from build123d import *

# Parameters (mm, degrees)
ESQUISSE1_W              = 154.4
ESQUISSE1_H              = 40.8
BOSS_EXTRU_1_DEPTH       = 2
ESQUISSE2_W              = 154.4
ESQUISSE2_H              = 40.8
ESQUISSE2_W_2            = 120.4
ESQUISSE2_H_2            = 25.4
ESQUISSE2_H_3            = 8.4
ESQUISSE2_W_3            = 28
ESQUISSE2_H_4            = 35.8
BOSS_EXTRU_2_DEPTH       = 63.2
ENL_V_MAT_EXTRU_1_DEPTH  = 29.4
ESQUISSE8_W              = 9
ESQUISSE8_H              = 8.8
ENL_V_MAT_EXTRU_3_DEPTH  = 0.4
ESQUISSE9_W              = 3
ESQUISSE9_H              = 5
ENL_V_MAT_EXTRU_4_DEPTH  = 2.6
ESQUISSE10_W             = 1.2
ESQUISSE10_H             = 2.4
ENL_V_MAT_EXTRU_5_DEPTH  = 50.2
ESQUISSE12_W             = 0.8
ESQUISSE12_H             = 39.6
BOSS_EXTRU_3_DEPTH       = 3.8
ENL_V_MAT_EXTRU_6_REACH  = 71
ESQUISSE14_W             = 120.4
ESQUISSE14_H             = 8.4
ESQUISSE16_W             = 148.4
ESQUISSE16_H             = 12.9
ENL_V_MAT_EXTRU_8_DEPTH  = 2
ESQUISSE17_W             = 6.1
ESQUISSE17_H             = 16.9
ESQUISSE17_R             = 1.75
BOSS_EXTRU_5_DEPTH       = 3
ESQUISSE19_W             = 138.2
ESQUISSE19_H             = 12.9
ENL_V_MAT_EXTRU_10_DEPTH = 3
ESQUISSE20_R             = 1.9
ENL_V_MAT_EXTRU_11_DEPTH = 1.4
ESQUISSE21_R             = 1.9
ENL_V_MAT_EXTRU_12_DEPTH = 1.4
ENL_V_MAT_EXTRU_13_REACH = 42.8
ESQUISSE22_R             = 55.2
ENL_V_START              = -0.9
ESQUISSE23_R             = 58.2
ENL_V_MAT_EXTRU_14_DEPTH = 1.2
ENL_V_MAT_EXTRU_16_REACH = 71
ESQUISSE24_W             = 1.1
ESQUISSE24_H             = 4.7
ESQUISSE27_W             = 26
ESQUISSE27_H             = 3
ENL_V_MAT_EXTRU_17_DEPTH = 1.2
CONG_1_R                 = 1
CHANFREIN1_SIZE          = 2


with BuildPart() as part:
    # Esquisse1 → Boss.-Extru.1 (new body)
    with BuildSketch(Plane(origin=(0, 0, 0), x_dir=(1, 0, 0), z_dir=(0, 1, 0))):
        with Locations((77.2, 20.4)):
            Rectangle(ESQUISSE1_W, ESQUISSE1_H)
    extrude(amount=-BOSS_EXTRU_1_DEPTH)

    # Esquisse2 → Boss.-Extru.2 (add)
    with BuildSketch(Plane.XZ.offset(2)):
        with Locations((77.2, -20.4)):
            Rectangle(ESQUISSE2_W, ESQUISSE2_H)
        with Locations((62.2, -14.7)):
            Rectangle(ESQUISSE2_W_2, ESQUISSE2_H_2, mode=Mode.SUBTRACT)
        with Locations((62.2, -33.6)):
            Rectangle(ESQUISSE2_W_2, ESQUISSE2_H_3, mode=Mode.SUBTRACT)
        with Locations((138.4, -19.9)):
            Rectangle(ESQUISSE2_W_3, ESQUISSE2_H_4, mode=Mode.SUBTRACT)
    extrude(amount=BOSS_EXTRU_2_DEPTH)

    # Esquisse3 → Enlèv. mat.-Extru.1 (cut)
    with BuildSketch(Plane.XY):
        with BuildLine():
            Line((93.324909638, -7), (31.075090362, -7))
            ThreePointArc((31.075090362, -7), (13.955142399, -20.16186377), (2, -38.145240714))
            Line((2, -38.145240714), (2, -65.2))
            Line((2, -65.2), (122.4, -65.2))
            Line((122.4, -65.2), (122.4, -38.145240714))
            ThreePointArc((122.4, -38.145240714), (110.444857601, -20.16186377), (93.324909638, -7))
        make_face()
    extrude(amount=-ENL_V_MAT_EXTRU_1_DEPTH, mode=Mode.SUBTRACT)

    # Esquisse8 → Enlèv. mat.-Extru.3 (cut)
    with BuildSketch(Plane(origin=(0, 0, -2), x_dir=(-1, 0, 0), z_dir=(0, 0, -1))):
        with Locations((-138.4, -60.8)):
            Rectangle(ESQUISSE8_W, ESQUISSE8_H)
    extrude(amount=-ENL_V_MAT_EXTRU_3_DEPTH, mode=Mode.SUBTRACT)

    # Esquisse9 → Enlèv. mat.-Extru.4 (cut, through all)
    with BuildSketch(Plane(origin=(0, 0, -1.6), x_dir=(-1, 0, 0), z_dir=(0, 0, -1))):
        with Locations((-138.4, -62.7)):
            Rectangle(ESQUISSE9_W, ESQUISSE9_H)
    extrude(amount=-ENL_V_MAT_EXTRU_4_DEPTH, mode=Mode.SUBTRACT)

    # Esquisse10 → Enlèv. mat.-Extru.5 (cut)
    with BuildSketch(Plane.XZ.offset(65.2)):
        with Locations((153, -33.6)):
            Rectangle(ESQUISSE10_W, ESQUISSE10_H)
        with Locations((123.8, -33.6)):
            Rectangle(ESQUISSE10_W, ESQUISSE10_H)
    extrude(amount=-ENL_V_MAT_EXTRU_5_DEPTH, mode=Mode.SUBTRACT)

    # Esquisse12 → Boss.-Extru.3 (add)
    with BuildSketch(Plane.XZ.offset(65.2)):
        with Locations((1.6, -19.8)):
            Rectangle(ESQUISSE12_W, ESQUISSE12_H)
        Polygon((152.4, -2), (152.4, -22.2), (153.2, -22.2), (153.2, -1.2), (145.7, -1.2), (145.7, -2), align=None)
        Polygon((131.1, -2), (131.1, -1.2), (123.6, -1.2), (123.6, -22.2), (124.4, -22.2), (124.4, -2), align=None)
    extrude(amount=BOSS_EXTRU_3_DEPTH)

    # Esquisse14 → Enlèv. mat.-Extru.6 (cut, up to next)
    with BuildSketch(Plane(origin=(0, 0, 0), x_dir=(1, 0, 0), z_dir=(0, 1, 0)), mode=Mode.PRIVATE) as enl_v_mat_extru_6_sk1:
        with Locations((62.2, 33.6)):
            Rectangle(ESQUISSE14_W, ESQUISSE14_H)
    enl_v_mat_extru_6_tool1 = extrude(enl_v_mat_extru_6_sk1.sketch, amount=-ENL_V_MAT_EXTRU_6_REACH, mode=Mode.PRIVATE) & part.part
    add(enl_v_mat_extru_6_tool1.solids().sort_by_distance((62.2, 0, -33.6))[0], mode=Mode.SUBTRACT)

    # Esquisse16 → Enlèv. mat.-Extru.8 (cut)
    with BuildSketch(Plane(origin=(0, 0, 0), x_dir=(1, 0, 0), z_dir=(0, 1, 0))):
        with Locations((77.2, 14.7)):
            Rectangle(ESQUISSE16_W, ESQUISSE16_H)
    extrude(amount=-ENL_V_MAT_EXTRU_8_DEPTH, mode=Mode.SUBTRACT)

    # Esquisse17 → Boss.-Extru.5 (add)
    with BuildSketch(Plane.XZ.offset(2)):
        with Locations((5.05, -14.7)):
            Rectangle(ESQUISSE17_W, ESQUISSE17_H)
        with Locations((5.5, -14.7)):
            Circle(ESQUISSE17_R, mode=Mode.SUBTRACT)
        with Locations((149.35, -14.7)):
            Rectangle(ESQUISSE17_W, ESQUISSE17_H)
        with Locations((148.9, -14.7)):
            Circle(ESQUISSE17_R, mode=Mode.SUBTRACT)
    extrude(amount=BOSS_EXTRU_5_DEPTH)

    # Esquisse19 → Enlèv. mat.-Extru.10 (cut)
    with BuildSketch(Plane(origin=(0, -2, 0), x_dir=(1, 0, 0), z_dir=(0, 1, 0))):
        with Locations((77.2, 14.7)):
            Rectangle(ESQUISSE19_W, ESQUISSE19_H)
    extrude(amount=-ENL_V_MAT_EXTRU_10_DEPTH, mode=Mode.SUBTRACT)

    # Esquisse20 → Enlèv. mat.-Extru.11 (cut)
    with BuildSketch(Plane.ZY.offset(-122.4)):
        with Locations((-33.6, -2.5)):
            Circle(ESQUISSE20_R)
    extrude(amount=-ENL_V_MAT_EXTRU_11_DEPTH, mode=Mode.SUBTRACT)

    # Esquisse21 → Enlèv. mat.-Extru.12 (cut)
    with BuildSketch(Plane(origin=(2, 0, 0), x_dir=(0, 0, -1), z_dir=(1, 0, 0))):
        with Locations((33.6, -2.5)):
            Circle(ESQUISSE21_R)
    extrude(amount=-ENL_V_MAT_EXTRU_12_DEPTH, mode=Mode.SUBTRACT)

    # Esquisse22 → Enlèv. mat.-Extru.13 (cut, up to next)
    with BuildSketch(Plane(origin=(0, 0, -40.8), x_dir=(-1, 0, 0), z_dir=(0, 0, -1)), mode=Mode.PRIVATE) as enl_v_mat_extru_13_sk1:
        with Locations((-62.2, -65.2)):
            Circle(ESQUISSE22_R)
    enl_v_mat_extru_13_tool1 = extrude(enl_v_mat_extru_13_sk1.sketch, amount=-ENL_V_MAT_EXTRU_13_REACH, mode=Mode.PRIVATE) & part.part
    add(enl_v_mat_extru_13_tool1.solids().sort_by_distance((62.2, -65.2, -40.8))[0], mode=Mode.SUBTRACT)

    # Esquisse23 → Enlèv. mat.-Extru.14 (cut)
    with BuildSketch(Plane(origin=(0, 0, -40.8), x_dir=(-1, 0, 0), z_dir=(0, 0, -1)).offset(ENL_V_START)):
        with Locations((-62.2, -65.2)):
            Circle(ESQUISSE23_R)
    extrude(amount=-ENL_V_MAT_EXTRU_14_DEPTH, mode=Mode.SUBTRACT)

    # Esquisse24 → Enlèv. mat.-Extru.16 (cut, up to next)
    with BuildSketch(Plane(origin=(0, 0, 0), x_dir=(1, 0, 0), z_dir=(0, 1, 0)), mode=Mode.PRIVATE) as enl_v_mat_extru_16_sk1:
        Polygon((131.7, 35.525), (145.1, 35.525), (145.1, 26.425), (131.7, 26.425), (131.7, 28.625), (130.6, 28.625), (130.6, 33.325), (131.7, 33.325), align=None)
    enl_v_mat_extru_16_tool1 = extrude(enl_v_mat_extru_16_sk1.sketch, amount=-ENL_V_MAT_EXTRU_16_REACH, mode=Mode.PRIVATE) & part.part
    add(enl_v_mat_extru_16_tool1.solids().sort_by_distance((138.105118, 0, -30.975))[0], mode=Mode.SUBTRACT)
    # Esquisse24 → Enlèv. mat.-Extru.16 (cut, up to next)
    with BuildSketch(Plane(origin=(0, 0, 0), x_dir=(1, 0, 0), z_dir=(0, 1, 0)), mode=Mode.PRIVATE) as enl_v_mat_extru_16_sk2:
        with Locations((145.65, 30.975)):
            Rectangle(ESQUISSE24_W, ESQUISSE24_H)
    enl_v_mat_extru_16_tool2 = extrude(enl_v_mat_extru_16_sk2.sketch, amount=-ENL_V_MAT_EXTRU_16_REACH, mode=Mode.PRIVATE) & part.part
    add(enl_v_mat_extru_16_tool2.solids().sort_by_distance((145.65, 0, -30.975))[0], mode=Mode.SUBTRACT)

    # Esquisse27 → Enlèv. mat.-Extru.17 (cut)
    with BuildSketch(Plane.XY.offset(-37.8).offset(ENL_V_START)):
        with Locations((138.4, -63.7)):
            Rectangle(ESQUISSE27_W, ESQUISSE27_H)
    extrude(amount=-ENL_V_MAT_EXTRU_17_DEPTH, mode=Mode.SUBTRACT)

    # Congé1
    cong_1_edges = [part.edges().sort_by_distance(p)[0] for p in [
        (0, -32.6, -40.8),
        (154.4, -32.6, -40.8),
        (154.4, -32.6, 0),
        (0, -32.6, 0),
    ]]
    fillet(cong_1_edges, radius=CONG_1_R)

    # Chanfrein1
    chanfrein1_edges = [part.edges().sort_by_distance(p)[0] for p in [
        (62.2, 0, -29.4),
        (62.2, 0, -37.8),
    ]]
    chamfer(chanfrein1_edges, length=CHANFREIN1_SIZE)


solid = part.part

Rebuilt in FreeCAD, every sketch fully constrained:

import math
import FreeCAD as App
import Part
import Sketcher
from FreeCAD import Vector


def edges_at(feature, points):
    """Names of the edges that pass closest to the given points."""
    edges = feature.Shape.Edges
    near = lambda p: min(range(len(edges)), key=lambda i: edges[i].distToShape(Part.Vertex(*p))[0])
    return sorted({f"Edge{near(p) + 1}" for p in points})

doc = App.newDocument("Part")
body = doc.addObject("PartDesign::Body", "Body")

sketch1 = body.newObject("Sketcher::SketchObject", "Sketch")
sketch1.AttachmentSupport = (doc.getObject("XZ_Plane"), [""])
sketch1.MapMode = "FlatFace"
sketch1.addGeometry([
    Part.LineSegment(Vector(0, -40.8, 0), Vector(0, 0, 0)),
    Part.LineSegment(Vector(0, 0, 0), Vector(154.4, 0, 0)),
    Part.LineSegment(Vector(154.4, 0, 0), Vector(154.4, -40.8, 0)),
    Part.LineSegment(Vector(154.4, -40.8, 0), Vector(0, -40.8, 0)),
], False)
sketch1.addConstraint([
    Sketcher.Constraint("Coincident", 0, 2, 1, 1),
    Sketcher.Constraint("Coincident", 1, 2, 2, 1),
    Sketcher.Constraint("Coincident", 2, 2, 3, 1),
    Sketcher.Constraint("Coincident", 3, 2, 0, 1),
    Sketcher.Constraint("Vertical", 0),
    Sketcher.Constraint("Horizontal", 1),
    Sketcher.Constraint("Vertical", 2),
    Sketcher.Constraint("Horizontal", 3),
    Sketcher.Constraint("Coincident", 0, 2, -1, 1),
    Sketcher.Constraint("DistanceX", 1, 1, 1, 2, 154.4),
    Sketcher.Constraint("DistanceY", 0, 1, 0, 2, 40.8),
])
pad1 = body.newObject("PartDesign::Pad", "Pad")
pad1.Profile = sketch1
pad1.Length = 2

sketch2 = body.newObject("Sketcher::SketchObject", "Sketch001")
sketch2.AttachmentSupport = (doc.getObject("XZ_Plane"), [""])
sketch2.MapMode = "FlatFace"
sketch2.AttachmentOffset = App.Placement(Vector(0, 0, 2), App.Rotation())
sketch2.addGeometry([
    Part.LineSegment(Vector(0, 0, 0), Vector(0, -40.8, 0)),
    Part.LineSegment(Vector(0, -40.8, 0), Vector(154.4, -40.8, 0)),
    Part.LineSegment(Vector(154.4, -40.8, 0), Vector(154.4, 0, 0)),
    Part.LineSegment(Vector(154.4, 0, 0), Vector(0, 0, 0)),
    Part.LineSegment(Vector(122.4, -37.8, 0), Vector(2, -37.8, 0)),
    Part.LineSegment(Vector(2, -37.8, 0), Vector(2, -29.4, 0)),
    Part.LineSegment(Vector(2, -29.4, 0), Vector(122.4, -29.4, 0)),
    Part.LineSegment(Vector(122.4, -29.4, 0), Vector(122.4, -37.8, 0)),
    Part.LineSegment(Vector(122.4, -27.4, 0), Vector(2, -27.4, 0)),
    Part.LineSegment(Vector(2, -27.4, 0), Vector(2, -2, 0)),
    Part.LineSegment(Vector(2, -2, 0), Vector(122.4, -2, 0)),
    Part.LineSegment(Vector(122.4, -2, 0), Vector(122.4, -27.4, 0)),
    Part.LineSegment(Vector(152.4, -37.8, 0), Vector(124.4, -37.8, 0)),
    Part.LineSegment(Vector(124.4, -37.8, 0), Vector(124.4, -2, 0)),
    Part.LineSegment(Vector(124.4, -2, 0), Vector(152.4, -2, 0)),
    Part.LineSegment(Vector(152.4, -2, 0), Vector(152.4, -37.8, 0)),
], False)
sketch2.addConstraint([
    Sketcher.Constraint("Coincident", 0, 2, 1, 1),
    Sketcher.Constraint("Coincident", 1, 2, 2, 1),
    Sketcher.Constraint("Coincident", 2, 2, 3, 1),
    Sketcher.Constraint("Coincident", 3, 2, 0, 1),
    Sketcher.Constraint("Coincident", 4, 2, 5, 1),
    Sketcher.Constraint("Coincident", 5, 2, 6, 1),
    Sketcher.Constraint("Coincident", 6, 2, 7, 1),
    Sketcher.Constraint("Coincident", 7, 2, 4, 1),
    Sketcher.Constraint("Coincident", 8, 2, 9, 1),
    Sketcher.Constraint("Coincident", 9, 2, 10, 1),
    Sketcher.Constraint("Coincident", 10, 2, 11, 1),
    Sketcher.Constraint("Coincident", 11, 2, 8, 1),
    Sketcher.Constraint("Coincident", 12, 2, 13, 1),
    Sketcher.Constraint("Coincident", 13, 2, 14, 1),
    Sketcher.Constraint("Coincident", 14, 2, 15, 1),
    Sketcher.Constraint("Coincident", 15, 2, 12, 1),
    Sketcher.Constraint("Vertical", 0),
    Sketcher.Constraint("Horizontal", 1),
    Sketcher.Constraint("Vertical", 2),
    Sketcher.Constraint("Horizontal", 3),
    Sketcher.Constraint("Horizontal", 4),
    Sketcher.Constraint("Vertical", 5),
    Sketcher.Constraint("Horizontal", 6),
    Sketcher.Constraint("Vertical", 7),
    Sketcher.Constraint("Horizontal", 8),
    Sketcher.Constraint("Vertical", 9),
    Sketcher.Constraint("Horizontal", 10),
    Sketcher.Constraint("Vertical", 11),
    Sketcher.Constraint("Horizontal", 12),
    Sketcher.Constraint("Vertical", 13),
    Sketcher.Constraint("Horizontal", 14),
    Sketcher.Constraint("Vertical", 15),
    Sketcher.Constraint("Coincident", 3, 2, -1, 1),
    Sketcher.Constraint("Horizontal", 7, 2, 12, 2),
    Sketcher.Constraint("Horizontal", 10, 2, 13, 2),
    Sketcher.Constraint("Vertical", 5, 2, 8, 2),
    Sketcher.Constraint("Vertical", 7, 2, 10, 2),
    Sketcher.Constraint("DistanceX", 12, 2, 12, 1, 28.0),
    Sketcher.Constraint("DistanceX", 1, 1, 1, 2, 154.4),
    Sketcher.Constraint("DistanceX", 4, 2, 4, 1, 120.4),
    Sketcher.Constraint("DistanceY", 0, 2, 0, 1, 40.8),
    Sketcher.Constraint("DistanceY", 5, 1, 5, 2, 8.4),
    Sketcher.Constraint("DistanceY", 9, 1, 9, 2, 25.4),
    Sketcher.Constraint("DistanceY", 13, 1, 13, 2, 35.8),
    Sketcher.Constraint("DistanceX", -1, 1, 4, 2, 2.0),
    Sketcher.Constraint("DistanceY", 9, 2, -1, 1, 2.0),
    Sketcher.Constraint("DistanceX", 7, 2, 12, 2, 2.0),
])
pad2 = body.newObject("PartDesign::Pad", "Pad001")
pad2.Profile = sketch2
pad2.Length = 63.2

sketch3 = body.newObject("Sketcher::SketchObject", "Sketch002")
sketch3.AttachmentSupport = (doc.getObject("XY_Plane"), [""])
sketch3.MapMode = "FlatFace"
sketch3.addGeometry([
    Part.LineSegment(Vector(93.32491, -7, 0), Vector(31.07509, -7, 0)),
    Part.ArcOfCircle(Part.Circle(Vector(62.2, -65.2, 0), Vector(0, 0, 1), 66), math.radians(118.137527), math.radians(155.800153)),
    Part.LineSegment(Vector(2, -38.145241, 0), Vector(2, -65.2, 0)),
    Part.LineSegment(Vector(2, -65.2, 0), Vector(122.4, -65.2, 0)),
    Part.LineSegment(Vector(122.4, -65.2, 0), Vector(122.4, -38.145241, 0)),
    Part.ArcOfCircle(Part.Circle(Vector(62.2, -65.2, 0), Vector(0, 0, 1), 66), math.radians(24.199847), math.radians(61.862473)),
], False)
sketch3.addConstraint([
    Sketcher.Constraint("Coincident", 0, 2, 1, 1),
    Sketcher.Constraint("Coincident", 1, 2, 2, 1),
    Sketcher.Constraint("Coincident", 2, 2, 3, 1),
    Sketcher.Constraint("Coincident", 3, 2, 4, 1),
    Sketcher.Constraint("Coincident", 4, 2, 5, 1),
    Sketcher.Constraint("Coincident", 5, 2, 0, 1),
    Sketcher.Constraint("Horizontal", 0),
    Sketcher.Constraint("Vertical", 2),
    Sketcher.Constraint("Horizontal", 3),
    Sketcher.Constraint("Vertical", 4),
    Sketcher.Constraint("Coincident", 5, 3, 1, 3),
    Sketcher.Constraint("Equal", 1, 5),
    Sketcher.Constraint("Horizontal", 5, 3, 2, 2),
    Sketcher.Constraint("Horizontal", 1, 2, 4, 2),
    Sketcher.Constraint("Radius", 1, 66.0),
    Sketcher.Constraint("DistanceX", 3, 1, 3, 2, 120.4),
    Sketcher.Constraint("DistanceY", 0, 2, -1, 1, 7.0),
    Sketcher.Constraint("DistanceX", -1, 1, 1, 2, 2.0),
    Sketcher.Constraint("DistanceY", 1, 3, -1, 1, 65.2),
])
pocket1 = body.newObject("PartDesign::Pocket", "Pocket")
pocket1.Profile = sketch3
pocket1.Length = 29.4

sketch4 = body.newObject("Sketcher::SketchObject", "Sketch003")
sketch4.AttachmentSupport = (doc.getObject("XY_Plane"), [""])
sketch4.MapMode = "FlatFace"
sketch4.AttachmentOffset = App.Placement(Vector(0, 0, -2), App.Rotation())
sketch4.addGeometry([
    Part.LineSegment(Vector(142.9, -56.4, 0), Vector(142.9, -65.2, 0)),
    Part.LineSegment(Vector(142.9, -65.2, 0), Vector(133.9, -65.2, 0)),
    Part.LineSegment(Vector(133.9, -65.2, 0), Vector(133.9, -56.4, 0)),
    Part.LineSegment(Vector(133.9, -56.4, 0), Vector(142.9, -56.4, 0)),
], False)
sketch4.addConstraint([
    Sketcher.Constraint("Coincident", 0, 2, 1, 1),
    Sketcher.Constraint("Coincident", 1, 2, 2, 1),
    Sketcher.Constraint("Coincident", 2, 2, 3, 1),
    Sketcher.Constraint("Coincident", 3, 2, 0, 1),
    Sketcher.Constraint("Vertical", 0),
    Sketcher.Constraint("Horizontal", 1),
    Sketcher.Constraint("Vertical", 2),
    Sketcher.Constraint("Horizontal", 3),
    Sketcher.Constraint("DistanceX", 1, 2, 1, 1, 9.0),
    Sketcher.Constraint("DistanceY", 0, 2, 0, 1, 8.8),
    Sketcher.Constraint("DistanceX", -1, 1, 0, 2, 142.9),
    Sketcher.Constraint("DistanceY", 0, 2, -1, 1, 65.2),
])
pocket2 = body.newObject("PartDesign::Pocket", "Pocket001")
pocket2.Profile = sketch4
pocket2.Length = 0.4
pocket2.Reversed = True

sketch5 = body.newObject("Sketcher::SketchObject", "Sketch004")
sketch5.AttachmentSupport = (doc.getObject("XY_Plane"), [""])
sketch5.MapMode = "FlatFace"
sketch5.AttachmentOffset = App.Placement(Vector(0, 0, -1.6), App.Rotation())
sketch5.addGeometry([
    Part.LineSegment(Vector(139.9, -60.2, 0), Vector(139.9, -65.2, 0)),
    Part.LineSegment(Vector(139.9, -65.2, 0), Vector(136.9, -65.2, 0)),
    Part.LineSegment(Vector(136.9, -65.2, 0), Vector(136.9, -60.2, 0)),
    Part.LineSegment(Vector(136.9, -60.2, 0), Vector(139.9, -60.2, 0)),
], False)
sketch5.addConstraint([
    Sketcher.Constraint("Coincident", 0, 2, 1, 1),
    Sketcher.Constraint("Coincident", 1, 2, 2, 1),
    Sketcher.Constraint("Coincident", 2, 2, 3, 1),
    Sketcher.Constraint("Coincident", 3, 2, 0, 1),
    Sketcher.Constraint("Vertical", 0),
    Sketcher.Constraint("Horizontal", 1),
    Sketcher.Constraint("Vertical", 2),
    Sketcher.Constraint("Horizontal", 3),
    Sketcher.Constraint("DistanceX", 1, 2, 1, 1, 3.0),
    Sketcher.Constraint("DistanceY", 0, 2, 0, 1, 5.0),
    Sketcher.Constraint("DistanceX", -1, 1, 0, 2, 139.9),
    Sketcher.Constraint("DistanceY", 0, 2, -1, 1, 65.2),
])
pocket3 = body.newObject("PartDesign::Pocket", "Pocket002")
pocket3.Profile = sketch5
pocket3.Type = "ThroughAll"
pocket3.Reversed = True

sketch6 = body.newObject("Sketcher::SketchObject", "Sketch005")
sketch6.AttachmentSupport = (doc.getObject("XZ_Plane"), [""])
sketch6.MapMode = "FlatFace"
sketch6.AttachmentOffset = App.Placement(Vector(0, 0, 65.2), App.Rotation())
sketch6.addGeometry([
    Part.LineSegment(Vector(152.4, -32.4, 0), Vector(152.4, -34.8, 0)),
    Part.LineSegment(Vector(152.4, -34.8, 0), Vector(153.6, -34.8, 0)),
    Part.LineSegment(Vector(153.6, -34.8, 0), Vector(153.6, -32.4, 0)),
    Part.LineSegment(Vector(153.6, -32.4, 0), Vector(152.4, -32.4, 0)),
    Part.LineSegment(Vector(123.2, -32.4, 0), Vector(123.2, -34.8, 0)),
    Part.LineSegment(Vector(123.2, -34.8, 0), Vector(124.4, -34.8, 0)),
    Part.LineSegment(Vector(124.4, -34.8, 0), Vector(124.4, -32.4, 0)),
    Part.LineSegment(Vector(124.4, -32.4, 0), Vector(123.2, -32.4, 0)),
], False)
sketch6.addConstraint([
    Sketcher.Constraint("Coincident", 0, 2, 1, 1),
    Sketcher.Constraint("Coincident", 1, 2, 2, 1),
    Sketcher.Constraint("Coincident", 2, 2, 3, 1),
    Sketcher.Constraint("Coincident", 3, 2, 0, 1),
    Sketcher.Constraint("Coincident", 4, 2, 5, 1),
    Sketcher.Constraint("Coincident", 5, 2, 6, 1),
    Sketcher.Constraint("Coincident", 6, 2, 7, 1),
    Sketcher.Constraint("Coincident", 7, 2, 4, 1),
    Sketcher.Constraint("Vertical", 0),
    Sketcher.Constraint("Horizontal", 1),
    Sketcher.Constraint("Vertical", 2),
    Sketcher.Constraint("Horizontal", 3),
    Sketcher.Constraint("Vertical", 4),
    Sketcher.Constraint("Horizontal", 5),
    Sketcher.Constraint("Vertical", 6),
    Sketcher.Constraint("Horizontal", 7),
    Sketcher.Constraint("Horizontal", 1, 2, 4, 2),
    Sketcher.Constraint("Horizontal", 3, 2, 6, 2),
    Sketcher.Constraint("Equal", 3, 5),
    Sketcher.Constraint("DistanceX", 1, 1, 1, 2, 1.2),
    Sketcher.Constraint("DistanceY", 0, 2, 0, 1, 2.4),
    Sketcher.Constraint("DistanceX", 5, 2, 0, 2, 28.0),
    Sketcher.Constraint("DistanceX", -1, 1, 0, 2, 152.4),
    Sketcher.Constraint("DistanceY", 0, 2, -1, 1, 34.8),
])
pocket4 = body.newObject("PartDesign::Pocket", "Pocket003")
pocket4.Profile = sketch6
pocket4.Length = 50.2

sketch7 = body.newObject("Sketcher::SketchObject", "Sketch006")
sketch7.AttachmentSupport = (doc.getObject("XZ_Plane"), [""])
sketch7.MapMode = "FlatFace"
sketch7.AttachmentOffset = App.Placement(Vector(0, 0, 65.2), App.Rotation())
sketch7.addGeometry([
    Part.LineSegment(Vector(1.2, 0, 0), Vector(1.2, -39.6, 0)),
    Part.LineSegment(Vector(1.2, -39.6, 0), Vector(2, -39.6, 0)),
    Part.LineSegment(Vector(2, -39.6, 0), Vector(2, 0, 0)),
    Part.LineSegment(Vector(2, 0, 0), Vector(1.2, 0, 0)),
    Part.LineSegment(Vector(152.4, -2, 0), Vector(152.4, -22.2, 0)),
    Part.LineSegment(Vector(152.4, -22.2, 0), Vector(153.2, -22.2, 0)),
    Part.LineSegment(Vector(153.2, -22.2, 0), Vector(153.2, -1.2, 0)),
    Part.LineSegment(Vector(153.2, -1.2, 0), Vector(145.7, -1.2, 0)),
    Part.LineSegment(Vector(145.7, -1.2, 0), Vector(145.7, -2, 0)),
    Part.LineSegment(Vector(145.7, -2, 0), Vector(152.4, -2, 0)),
    Part.LineSegment(Vector(131.1, -2, 0), Vector(131.1, -1.2, 0)),
    Part.LineSegment(Vector(131.1, -1.2, 0), Vector(123.6, -1.2, 0)),
    Part.LineSegment(Vector(123.6, -1.2, 0), Vector(123.6, -22.2, 0)),
    Part.LineSegment(Vector(123.6, -22.2, 0), Vector(124.4, -22.2, 0)),
    Part.LineSegment(Vector(124.4, -22.2, 0), Vector(124.4, -2, 0)),
    Part.LineSegment(Vector(124.4, -2, 0), Vector(131.1, -2, 0)),
], False)
sketch7.addConstraint([
    Sketcher.Constraint("Coincident", 0, 2, 1, 1),
    Sketcher.Constraint("Coincident", 1, 2, 2, 1),
    Sketcher.Constraint("Coincident", 2, 2, 3, 1),
    Sketcher.Constraint("Coincident", 3, 2, 0, 1),
    Sketcher.Constraint("Coincident", 4, 2, 5, 1),
    Sketcher.Constraint("Coincident", 5, 2, 6, 1),
    Sketcher.Constraint("Coincident", 6, 2, 7, 1),
    Sketcher.Constraint("Coincident", 7, 2, 8, 1),
    Sketcher.Constraint("Coincident", 8, 2, 9, 1),
    Sketcher.Constraint("Coincident", 9, 2, 4, 1),
    Sketcher.Constraint("Coincident", 10, 2, 11, 1),
    Sketcher.Constraint("Coincident", 11, 2, 12, 1),
    Sketcher.Constraint("Coincident", 12, 2, 13, 1),
    Sketcher.Constraint("Coincident", 13, 2, 14, 1),
    Sketcher.Constraint("Coincident", 14, 2, 15, 1),
    Sketcher.Constraint("Coincident", 15, 2, 10, 1),
    Sketcher.Constraint("Vertical", 0),
    Sketcher.Constraint("Horizontal", 1),
    Sketcher.Constraint("Vertical", 2),
    Sketcher.Constraint("Horizontal", 3),
    Sketcher.Constraint("Vertical", 4),
    Sketcher.Constraint("Horizontal", 5),
    Sketcher.Constraint("Vertical", 6),
    Sketcher.Constraint("Horizontal", 7),
    Sketcher.Constraint("Vertical", 8),
    Sketcher.Constraint("Horizontal", 9),
    Sketcher.Constraint("Vertical", 10),
    Sketcher.Constraint("Horizontal", 11),
    Sketcher.Constraint("Vertical", 12),
    Sketcher.Constraint("Horizontal", 13),
    Sketcher.Constraint("Vertical", 14),
    Sketcher.Constraint("Horizontal", 15),
    Sketcher.Constraint("PointOnObject", 2, 2, -1),
    Sketcher.Constraint("Horizontal", 7, 2, 10, 2),
    Sketcher.Constraint("Horizontal", 5, 2, 12, 2),
    Sketcher.Constraint("Horizontal", 9, 2, 14, 2),
    Sketcher.Constraint("Equal", 3, 5),
    Sketcher.Constraint("Equal", 7, 11),
    Sketcher.Constraint("Equal", 5, 13),
    Sketcher.Constraint("Equal", 13, 8),
    Sketcher.Constraint("DistanceY", 6, 1, 6, 2, 21.0),
    Sketcher.Constraint("DistanceX", 1, 1, 1, 2, 0.8),
    Sketcher.Constraint("DistanceX", 7, 2, 7, 1, 7.5),
    Sketcher.Constraint("DistanceY", 0, 2, 0, 1, 39.6),
    Sketcher.Constraint("DistanceX", -1, 1, 1, 2, 2.0),
    Sketcher.Constraint("DistanceY", 8, 2, -1, 1, 2.0),
    Sketcher.Constraint("DistanceX", 0, 2, 5, 2, 152.0),
    Sketcher.Constraint("DistanceX", 13, 2, 4, 2, 28.0),
])
pad3 = body.newObject("PartDesign::Pad", "Pad002")
pad3.Profile = sketch7
pad3.Length = 3.8

sketch8 = body.newObject("Sketcher::SketchObject", "Sketch007")
sketch8.AttachmentSupport = (doc.getObject("XZ_Plane"), [""])
sketch8.MapMode = "FlatFace"
sketch8.addGeometry([
    Part.LineSegment(Vector(2, -37.8, 0), Vector(2, -29.4, 0)),
    Part.LineSegment(Vector(2, -29.4, 0), Vector(122.4, -29.4, 0)),
    Part.LineSegment(Vector(122.4, -29.4, 0), Vector(122.4, -37.8, 0)),
    Part.LineSegment(Vector(122.4, -37.8, 0), Vector(2, -37.8, 0)),
], False)
sketch8.addConstraint([
    Sketcher.Constraint("Coincident", 0, 2, 1, 1),
    Sketcher.Constraint("Coincident", 1, 2, 2, 1),
    Sketcher.Constraint("Coincident", 2, 2, 3, 1),
    Sketcher.Constraint("Coincident", 3, 2, 0, 1),
    Sketcher.Constraint("Vertical", 0),
    Sketcher.Constraint("Horizontal", 1),
    Sketcher.Constraint("Vertical", 2),
    Sketcher.Constraint("Horizontal", 3),
    Sketcher.Constraint("DistanceX", 1, 1, 1, 2, 120.4),
    Sketcher.Constraint("DistanceY", 0, 1, 0, 2, 8.4),
    Sketcher.Constraint("DistanceX", -1, 1, 0, 2, 2.0),
    Sketcher.Constraint("DistanceY", 0, 2, -1, 1, 29.4),
])
pocket5 = body.newObject("PartDesign::Pocket", "Pocket004")
pocket5.Profile = sketch8
pocket5.Type = "UpToFirst"
pocket5.Reversed = True

sketch9 = body.newObject("Sketcher::SketchObject", "Sketch008")
sketch9.AttachmentSupport = (doc.getObject("XZ_Plane"), [""])
sketch9.MapMode = "FlatFace"
sketch9.addGeometry([
    Part.LineSegment(Vector(3, -21.15, 0), Vector(3, -8.25, 0)),
    Part.LineSegment(Vector(3, -8.25, 0), Vector(151.4, -8.25, 0)),
    Part.LineSegment(Vector(151.4, -8.25, 0), Vector(151.4, -21.15, 0)),
    Part.LineSegment(Vector(151.4, -21.15, 0), Vector(3, -21.15, 0)),
], False)
sketch9.addConstraint([
    Sketcher.Constraint("Coincident", 0, 2, 1, 1),
    Sketcher.Constraint("Coincident", 1, 2, 2, 1),
    Sketcher.Constraint("Coincident", 2, 2, 3, 1),
    Sketcher.Constraint("Coincident", 3, 2, 0, 1),
    Sketcher.Constraint("Vertical", 0),
    Sketcher.Constraint("Horizontal", 1),
    Sketcher.Constraint("Vertical", 2),
    Sketcher.Constraint("Horizontal", 3),
    Sketcher.Constraint("DistanceX", 1, 1, 1, 2, 148.4),
    Sketcher.Constraint("DistanceY", 0, 1, 0, 2, 12.9),
    Sketcher.Constraint("DistanceX", -1, 1, 0, 2, 3.0),
    Sketcher.Constraint("DistanceY", 0, 2, -1, 1, 8.25),
])
pocket6 = body.newObject("PartDesign::Pocket", "Pocket005")
pocket6.Profile = sketch9
pocket6.Length = 2
pocket6.Reversed = True

sketch10 = body.newObject("Sketcher::SketchObject", "Sketch009")
sketch10.AttachmentSupport = (doc.getObject("XZ_Plane"), [""])
sketch10.MapMode = "FlatFace"
sketch10.AttachmentOffset = App.Placement(Vector(0, 0, 2), App.Rotation())
sketch10.addGeometry([
    Part.LineSegment(Vector(2, -6.25, 0), Vector(2, -23.15, 0)),
    Part.LineSegment(Vector(2, -23.15, 0), Vector(8.1, -23.15, 0)),
    Part.LineSegment(Vector(8.1, -23.15, 0), Vector(8.1, -6.25, 0)),
    Part.LineSegment(Vector(8.1, -6.25, 0), Vector(2, -6.25, 0)),
    Part.Circle(Vector(5.5, -14.7, 0), Vector(0, 0, 1), 1.75),
    Part.LineSegment(Vector(146.3, -6.25, 0), Vector(146.3, -23.15, 0)),
    Part.LineSegment(Vector(146.3, -23.15, 0), Vector(152.4, -23.15, 0)),
    Part.LineSegment(Vector(152.4, -23.15, 0), Vector(152.4, -6.25, 0)),
    Part.LineSegment(Vector(152.4, -6.25, 0), Vector(146.3, -6.25, 0)),
    Part.Circle(Vector(148.9, -14.7, 0), Vector(0, 0, 1), 1.75),
], False)
sketch10.addConstraint([
    Sketcher.Constraint("Coincident", 0, 2, 1, 1),
    Sketcher.Constraint("Coincident", 1, 2, 2, 1),
    Sketcher.Constraint("Coincident", 2, 2, 3, 1),
    Sketcher.Constraint("Coincident", 3, 2, 0, 1),
    Sketcher.Constraint("Coincident", 5, 2, 6, 1),
    Sketcher.Constraint("Coincident", 6, 2, 7, 1),
    Sketcher.Constraint("Coincident", 7, 2, 8, 1),
    Sketcher.Constraint("Coincident", 8, 2, 5, 1),
    Sketcher.Constraint("Vertical", 0),
    Sketcher.Constraint("Horizontal", 1),
    Sketcher.Constraint("Vertical", 2),
    Sketcher.Constraint("Horizontal", 3),
    Sketcher.Constraint("Vertical", 5),
    Sketcher.Constraint("Horizontal", 6),
    Sketcher.Constraint("Vertical", 7),
    Sketcher.Constraint("Horizontal", 8),
    Sketcher.Constraint("Equal", 4, 9),
    Sketcher.Constraint("Horizontal", 4, 3, 9, 3),
    Sketcher.Constraint("Horizontal", 1, 2, 5, 2),
    Sketcher.Constraint("Horizontal", 3, 2, 7, 2),
    Sketcher.Constraint("Equal", 3, 6),
    Sketcher.Constraint("Diameter", 4, 3.5),
    Sketcher.Constraint("DistanceX", 1, 1, 1, 2, 6.1),
    Sketcher.Constraint("DistanceY", 0, 2, 0, 1, 16.9),
    Sketcher.Constraint("DistanceX", -1, 1, 0, 2, 2.0),
    Sketcher.Constraint("DistanceX", -1, 1, 4, 3, 5.5),
    Sketcher.Constraint("DistanceY", 4, 3, -1, 1, 14.7),
    Sketcher.Constraint("DistanceX", -1, 1, 9, 3, 148.9),
    Sketcher.Constraint("DistanceX", -1, 1, 5, 2, 146.3),
    Sketcher.Constraint("DistanceY", 0, 2, -1, 1, 23.15),
])
pad4 = body.newObject("PartDesign::Pad", "Pad003")
pad4.Profile = sketch10
pad4.Length = 3

sketch11 = body.newObject("Sketcher::SketchObject", "Sketch010")
sketch11.AttachmentSupport = (doc.getObject("XZ_Plane"), [""])
sketch11.MapMode = "FlatFace"
sketch11.AttachmentOffset = App.Placement(Vector(0, 0, 2), App.Rotation())
sketch11.addGeometry([
    Part.LineSegment(Vector(8.1, -21.15, 0), Vector(8.1, -8.25, 0)),
    Part.LineSegment(Vector(8.1, -8.25, 0), Vector(146.3, -8.25, 0)),
    Part.LineSegment(Vector(146.3, -8.25, 0), Vector(146.3, -21.15, 0)),
    Part.LineSegment(Vector(146.3, -21.15, 0), Vector(8.1, -21.15, 0)),
], False)
sketch11.addConstraint([
    Sketcher.Constraint("Coincident", 0, 2, 1, 1),
    Sketcher.Constraint("Coincident", 1, 2, 2, 1),
    Sketcher.Constraint("Coincident", 2, 2, 3, 1),
    Sketcher.Constraint("Coincident", 3, 2, 0, 1),
    Sketcher.Constraint("Vertical", 0),
    Sketcher.Constraint("Horizontal", 1),
    Sketcher.Constraint("Vertical", 2),
    Sketcher.Constraint("Horizontal", 3),
    Sketcher.Constraint("DistanceX", 1, 1, 1, 2, 138.2),
    Sketcher.Constraint("DistanceY", 0, 1, 0, 2, 12.9),
    Sketcher.Constraint("DistanceX", -1, 1, 0, 2, 8.1),
    Sketcher.Constraint("DistanceY", 0, 2, -1, 1, 8.25),
])
pocket7 = body.newObject("PartDesign::Pocket", "Pocket006")
pocket7.Profile = sketch11
pocket7.Length = 3
pocket7.Reversed = True

sketch12 = body.newObject("Sketcher::SketchObject", "Sketch011")
sketch12.AttachmentSupport = (doc.getObject("YZ_Plane"), [""])
sketch12.MapMode = "FlatFace"
sketch12.AttachmentOffset = App.Placement(Vector(0, 0, 122.4), App.Rotation())
sketch12.addGeometry(Part.Circle(Vector(-2.5, -33.6, 0), Vector(0, 0, 1), 1.9), False)
sketch12.addConstraint([
    Sketcher.Constraint("Diameter", 0, 3.8),
    Sketcher.Constraint("DistanceX", 0, 3, -1, 1, 2.5),
    Sketcher.Constraint("DistanceY", 0, 3, -1, 1, 33.6),
])
pocket8 = body.newObject("PartDesign::Pocket", "Pocket007")
pocket8.Profile = sketch12
pocket8.Length = 1.4
pocket8.Reversed = True

sketch13 = body.newObject("Sketcher::SketchObject", "Sketch012")
sketch13.AttachmentSupport = (doc.getObject("YZ_Plane"), [""])
sketch13.MapMode = "FlatFace"
sketch13.AttachmentOffset = App.Placement(Vector(0, 0, 2), App.Rotation())
sketch13.addGeometry(Part.Circle(Vector(-2.5, -33.6, 0), Vector(0, 0, 1), 1.9), False)
sketch13.addConstraint([
    Sketcher.Constraint("Diameter", 0, 3.8),
    Sketcher.Constraint("DistanceX", 0, 3, -1, 1, 2.5),
    Sketcher.Constraint("DistanceY", 0, 3, -1, 1, 33.6),
])
pocket9 = body.newObject("PartDesign::Pocket", "Pocket008")
pocket9.Profile = sketch13
pocket9.Length = 1.4

sketch14 = body.newObject("Sketcher::SketchObject", "Sketch013")
sketch14.AttachmentSupport = (doc.getObject("XY_Plane"), [""])
sketch14.MapMode = "FlatFace"
sketch14.AttachmentOffset = App.Placement(Vector(0, 0, -40.8), App.Rotation())
sketch14.addGeometry(Part.Circle(Vector(62.2, -65.2, 0), Vector(0, 0, 1), 55.2), False)
sketch14.addConstraint([
    Sketcher.Constraint("Diameter", 0, 110.4),
    Sketcher.Constraint("DistanceX", -1, 1, 0, 3, 62.2),
    Sketcher.Constraint("DistanceY", 0, 3, -1, 1, 65.2),
])
pocket10 = body.newObject("PartDesign::Pocket", "Pocket009")
pocket10.Profile = sketch14
pocket10.Type = "UpToFirst"
pocket10.Reversed = True

sketch15 = body.newObject("Sketcher::SketchObject", "Sketch014")
sketch15.AttachmentSupport = (doc.getObject("XY_Plane"), [""])
sketch15.MapMode = "FlatFace"
sketch15.AttachmentOffset = App.Placement(Vector(0, 0, -39.9), App.Rotation())
sketch15.addGeometry(Part.Circle(Vector(62.2, -65.2, 0), Vector(0, 0, 1), 58.2), False)
sketch15.addConstraint([
    Sketcher.Constraint("Diameter", 0, 116.4),
    Sketcher.Constraint("DistanceX", -1, 1, 0, 3, 62.2),
    Sketcher.Constraint("DistanceY", 0, 3, -1, 1, 65.2),
])
pocket11 = body.newObject("PartDesign::Pocket", "Pocket010")
pocket11.Profile = sketch15
pocket11.Length = 1.2
pocket11.Reversed = True

sketch16 = body.newObject("Sketcher::SketchObject", "Sketch015")
sketch16.AttachmentSupport = (doc.getObject("XZ_Plane"), [""])
sketch16.MapMode = "FlatFace"
sketch16.addGeometry([
    Part.LineSegment(Vector(145.1, -35.525, 0), Vector(131.7, -35.525, 0)),
    Part.LineSegment(Vector(131.7, -35.525, 0), Vector(131.7, -33.325, 0)),
    Part.LineSegment(Vector(131.7, -33.325, 0), Vector(130.6, -33.325, 0)),
    Part.LineSegment(Vector(130.6, -33.325, 0), Vector(130.6, -28.625, 0)),
    Part.LineSegment(Vector(130.6, -28.625, 0), Vector(131.7, -28.625, 0)),
    Part.LineSegment(Vector(131.7, -28.625, 0), Vector(131.7, -26.425, 0)),
    Part.LineSegment(Vector(131.7, -26.425, 0), Vector(145.1, -26.425, 0)),
    Part.LineSegment(Vector(145.1, -26.425, 0), Vector(145.1, -35.525, 0)),
], False)
sketch16.addConstraint([
    Sketcher.Constraint("Coincident", 0, 2, 1, 1),
    Sketcher.Constraint("Coincident", 1, 2, 2, 1),
    Sketcher.Constraint("Coincident", 2, 2, 3, 1),
    Sketcher.Constraint("Coincident", 3, 2, 4, 1),
    Sketcher.Constraint("Coincident", 4, 2, 5, 1),
    Sketcher.Constraint("Coincident", 5, 2, 6, 1),
    Sketcher.Constraint("Coincident", 6, 2, 7, 1),
    Sketcher.Constraint("Coincident", 7, 2, 0, 1),
    Sketcher.Constraint("Horizontal", 0),
    Sketcher.Constraint("Vertical", 1),
    Sketcher.Constraint("Horizontal", 2),
    Sketcher.Constraint("Vertical", 3),
    Sketcher.Constraint("Horizontal", 4),
    Sketcher.Constraint("Vertical", 5),
    Sketcher.Constraint("Horizontal", 6),
    Sketcher.Constraint("Vertical", 7),
    Sketcher.Constraint("Vertical", 1, 2, 4, 2),
    Sketcher.Constraint("Equal", 1, 5),
    Sketcher.Constraint("DistanceX", 0, 2, 0, 1, 13.4),
    Sketcher.Constraint("DistanceX", 2, 2, 2, 1, 1.1),
    Sketcher.Constraint("DistanceY", 1, 1, 1, 2, 2.2),
    Sketcher.Constraint("DistanceY", 3, 1, 3, 2, 4.7),
    Sketcher.Constraint("DistanceX", -1, 1, 0, 2, 131.7),
    Sketcher.Constraint("DistanceY", 0, 2, -1, 1, 35.525),
])
pocket12 = body.newObject("PartDesign::Pocket", "Pocket011")
pocket12.Profile = sketch16
pocket12.Type = "UpToFirst"
pocket12.Reversed = True

sketch17 = body.newObject("Sketcher::SketchObject", "Sketch016")
sketch17.AttachmentSupport = (doc.getObject("XZ_Plane"), [""])
sketch17.MapMode = "FlatFace"
sketch17.addGeometry([
    Part.LineSegment(Vector(145.1, -33.325, 0), Vector(145.1, -28.625, 0)),
    Part.LineSegment(Vector(145.1, -28.625, 0), Vector(146.2, -28.625, 0)),
    Part.LineSegment(Vector(146.2, -28.625, 0), Vector(146.2, -33.325, 0)),
    Part.LineSegment(Vector(146.2, -33.325, 0), Vector(145.1, -33.325, 0)),
], False)
sketch17.addConstraint([
    Sketcher.Constraint("Coincident", 0, 2, 1, 1),
    Sketcher.Constraint("Coincident", 1, 2, 2, 1),
    Sketcher.Constraint("Coincident", 2, 2, 3, 1),
    Sketcher.Constraint("Coincident", 3, 2, 0, 1),
    Sketcher.Constraint("Vertical", 0),
    Sketcher.Constraint("Horizontal", 1),
    Sketcher.Constraint("Vertical", 2),
    Sketcher.Constraint("Horizontal", 3),
    Sketcher.Constraint("DistanceX", 1, 1, 1, 2, 1.1),
    Sketcher.Constraint("DistanceY", 0, 1, 0, 2, 4.7),
    Sketcher.Constraint("DistanceX", -1, 1, 0, 2, 145.1),
    Sketcher.Constraint("DistanceY", 0, 2, -1, 1, 28.625),
])
pocket13 = body.newObject("PartDesign::Pocket", "Pocket012")
pocket13.Profile = sketch17
pocket13.Type = "UpToFirst"
pocket13.Reversed = True

sketch18 = body.newObject("Sketcher::SketchObject", "Sketch017")
sketch18.AttachmentSupport = (doc.getObject("XY_Plane"), [""])
sketch18.MapMode = "FlatFace"
sketch18.AttachmentOffset = App.Placement(Vector(0, 0, -38.7), App.Rotation())
sketch18.addGeometry([
    Part.LineSegment(Vector(125.4, -62.2, 0), Vector(125.4, -65.2, 0)),
    Part.LineSegment(Vector(125.4, -65.2, 0), Vector(151.4, -65.2, 0)),
    Part.LineSegment(Vector(151.4, -65.2, 0), Vector(151.4, -62.2, 0)),
    Part.LineSegment(Vector(151.4, -62.2, 0), Vector(125.4, -62.2, 0)),
], False)
sketch18.addConstraint([
    Sketcher.Constraint("Coincident", 0, 2, 1, 1),
    Sketcher.Constraint("Coincident", 1, 2, 2, 1),
    Sketcher.Constraint("Coincident", 2, 2, 3, 1),
    Sketcher.Constraint("Coincident", 3, 2, 0, 1),
    Sketcher.Constraint("Vertical", 0),
    Sketcher.Constraint("Horizontal", 1),
    Sketcher.Constraint("Vertical", 2),
    Sketcher.Constraint("Horizontal", 3),
    Sketcher.Constraint("DistanceX", 1, 1, 1, 2, 26.0),
    Sketcher.Constraint("DistanceY", 0, 2, 0, 1, 3.0),
    Sketcher.Constraint("DistanceX", -1, 1, 0, 2, 125.4),
    Sketcher.Constraint("DistanceY", 0, 2, -1, 1, 65.2),
])
pocket14 = body.newObject("PartDesign::Pocket", "Pocket013")
pocket14.Profile = sketch18
pocket14.Length = 1.2
doc.recompute()

fillet = body.newObject("PartDesign::Fillet", "Fillet")
fillet.Base = (pocket14, edges_at(pocket14, [
    (0, -32.6, -40.8),
    (154.4, -32.6, -40.8),
    (154.4, -32.6, 0),
    (0, -32.6, 0),
]))
fillet.Radius = 1
doc.recompute()

chamfer = body.newObject("PartDesign::Chamfer", "Chamfer")
chamfer.Base = (fillet, edges_at(fillet, [(62.2, 0, -29.4), (62.2, 0, -37.8)]))
chamfer.Size = 2

doc.recompute()
